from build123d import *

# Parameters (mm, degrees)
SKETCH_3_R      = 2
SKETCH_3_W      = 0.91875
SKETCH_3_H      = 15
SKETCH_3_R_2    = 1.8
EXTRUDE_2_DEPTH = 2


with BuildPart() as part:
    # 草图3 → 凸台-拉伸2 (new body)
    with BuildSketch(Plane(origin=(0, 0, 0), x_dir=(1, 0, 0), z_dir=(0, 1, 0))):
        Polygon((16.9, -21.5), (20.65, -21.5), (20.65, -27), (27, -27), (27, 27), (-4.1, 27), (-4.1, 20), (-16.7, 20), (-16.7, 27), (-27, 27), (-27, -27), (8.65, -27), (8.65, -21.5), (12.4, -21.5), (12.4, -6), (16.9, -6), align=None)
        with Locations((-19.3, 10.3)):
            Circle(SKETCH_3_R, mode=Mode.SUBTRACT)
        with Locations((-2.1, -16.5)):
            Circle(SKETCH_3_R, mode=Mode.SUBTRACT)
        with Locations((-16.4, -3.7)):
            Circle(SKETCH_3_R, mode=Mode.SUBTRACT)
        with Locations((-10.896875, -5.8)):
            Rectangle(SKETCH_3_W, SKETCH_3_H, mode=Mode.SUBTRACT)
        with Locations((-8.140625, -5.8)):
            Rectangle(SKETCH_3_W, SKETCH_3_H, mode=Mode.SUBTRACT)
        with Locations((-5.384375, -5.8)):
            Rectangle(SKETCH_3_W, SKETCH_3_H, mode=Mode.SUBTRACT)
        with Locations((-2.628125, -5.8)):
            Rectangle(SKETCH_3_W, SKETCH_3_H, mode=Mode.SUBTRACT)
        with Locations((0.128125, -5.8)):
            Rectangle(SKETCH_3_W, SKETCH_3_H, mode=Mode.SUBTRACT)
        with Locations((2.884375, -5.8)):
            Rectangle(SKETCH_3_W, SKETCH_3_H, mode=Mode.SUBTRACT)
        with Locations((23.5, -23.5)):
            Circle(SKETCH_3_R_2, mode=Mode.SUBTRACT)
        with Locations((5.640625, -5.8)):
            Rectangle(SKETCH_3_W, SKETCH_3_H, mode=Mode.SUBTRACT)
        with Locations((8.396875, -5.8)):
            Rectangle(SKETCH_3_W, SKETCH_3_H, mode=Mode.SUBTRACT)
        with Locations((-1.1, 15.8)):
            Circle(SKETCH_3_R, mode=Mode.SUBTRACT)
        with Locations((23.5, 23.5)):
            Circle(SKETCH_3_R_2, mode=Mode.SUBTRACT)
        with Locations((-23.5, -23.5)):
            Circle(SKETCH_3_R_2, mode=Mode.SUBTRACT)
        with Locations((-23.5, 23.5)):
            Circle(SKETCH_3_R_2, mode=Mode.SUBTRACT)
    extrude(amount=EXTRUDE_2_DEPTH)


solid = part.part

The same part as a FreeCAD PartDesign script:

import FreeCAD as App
import Part
import Sketcher

V = App.Vector


def add_polygon(sketch, points):
    """Adds a closed chain of lines whose ends are joined by coincident constraints."""
    first, n = sketch.GeometryCount, len(points)
    for a, b in zip(points, points[1:] + points[:1]):
        sketch.addGeometry(Part.LineSegment(App.Vector(*a, 0), App.Vector(*b, 0)), False)
    for i in range(n):
        sketch.addConstraint(Sketcher.Constraint("Coincident", first + i, 2, first + (i + 1) % n, 1))

doc = App.newDocument("Part")
body = doc.addObject("PartDesign::Body", "Body")

sketch1 = doc.addObject("Sketcher::SketchObject", "Sketch")
body.addObject(sketch1)
sketch1.AttachmentSupport = (doc.XZ_Plane, [""])
sketch1.MapMode = "FlatFace"
add_polygon(sketch1, [(16.9, 21.5), (20.6, 21.5), (20.6, 27), (27, 27), (27, -27), (-4.1, -27), (-4.1, -20), (-16.7, -20), (-16.7, -27), (-27, -27), (-27, 27), (8.7, 27), (8.7, 21.5), (12.4, 21.5), (12.4, 6), (16.9, 6)])
sketch1.addGeometry(Part.Circle(V(-23.5, 23.5, 0), V(0, 0, 1), 1.8), False)
sketch1.addGeometry(Part.Circle(V(-2.1, 16.5, 0), V(0, 0, 1), 2), False)
sketch1.addGeometry(Part.Circle(V(-16.4, 3.7, 0), V(0, 0, 1), 2), False)
add_polygon(sketch1, [(-10.4, 13.3), (-11.4, 13.3), (-11.4, -1.7), (-10.4, -1.7)])
add_polygon(sketch1, [(-7.7, 13.3), (-8.6, 13.3), (-8.6, -1.7), (-7.7, -1.7)])
add_polygon(sketch1, [(-4.9, 13.3), (-5.8, 13.3), (-5.8, -1.7), (-4.9, -1.7)])
add_polygon(sketch1, [(-2.2, 13.3), (-3.1, 13.3), (-3.1, -1.7), (-2.2, -1.7)])
sketch1.addGeometry(Part.Circle(V(23.5, 23.5, 0), V(0, 0, 1), 1.8), False)
add_polygon(sketch1, [(0.6, 13.3), (-0.3, 13.3), (-0.3, -1.7), (0.6, -1.7)])
add_polygon(sketch1, [(3.3, 13.3), (2.4, 13.3), (2.4, -1.7), (3.3, -1.7)])
add_polygon(sketch1, [(6.1, 13.3), (5.2, 13.3), (5.2, -1.7), (6.1, -1.7)])
add_polygon(sketch1, [(8.9, 13.3), (7.9, 13.3), (7.9, -1.7), (8.9, -1.7)])
sketch1.addGeometry(Part.Circle(V(-19.3, -10.3, 0), V(0, 0, 1), 2), False)
sketch1.addGeometry(Part.Circle(V(-23.5, -23.5, 0), V(0, 0, 1), 1.8), False)
sketch1.addGeometry(Part.Circle(V(-1.1, -15.8, 0), V(0, 0, 1), 2), False)
sketch1.addGeometry(Part.Circle(V(23.5, -23.5, 0), V(0, 0, 1), 1.8), False)
sketch1.addConstraint([
    Sketcher.Constraint("Horizontal", 0),
    Sketcher.Constraint("Vertical", 1),
    Sketcher.Constraint("Horizontal", 2),
    Sketcher.Constraint("Vertical", 3),
    Sketcher.Constraint("Horizontal", 4),
    Sketcher.Constraint("Vertical", 5),
    Sketcher.Constraint("Horizontal", 6),
    Sketcher.Constraint("Vertical", 7),
    Sketcher.Constraint("Horizontal", 8),
    Sketcher.Constraint("Vertical", 9),
    Sketcher.Constraint("Horizontal", 10),
    Sketcher.Constraint("Vertical", 11),
    Sketcher.Constraint("Horizontal", 12),
    Sketcher.Constraint("Vertical", 13),
    Sketcher.Constraint("Horizontal", 14),
    Sketcher.Constraint("Vertical", 15),
    Sketcher.Constraint("Horizontal", 19),
    Sketcher.Constraint("Vertical", 20),
    Sketcher.Constraint("Horizontal", 21),
    Sketcher.Constraint("Vertical", 22),
    Sketcher.Constraint("Horizontal", 23),
    Sketcher.Constraint("Vertical", 24),
    Sketcher.Constraint("Horizontal", 25),
    Sketcher.Constraint("Vertical", 26),
    Sketcher.Constraint("Horizontal", 27),
    Sketcher.Constraint("Vertical", 28),
    Sketcher.Constraint("Horizontal", 29),
    Sketcher.Constraint("Vertical", 30),
    Sketcher.Constraint("Horizontal", 31),
    Sketcher.Constraint("Vertical", 32),
    Sketcher.Constraint("Horizontal", 33),
    Sketcher.Constraint("Vertical", 34),
    Sketcher.Constraint("Horizontal", 36),
    Sketcher.Constraint("Vertical", 37),
    Sketcher.Constraint("Horizontal", 38),
    Sketcher.Constraint("Vertical", 39),
    Sketcher.Constraint("Horizontal", 40),
    Sketcher.Constraint("Vertical", 41),
    Sketcher.Constraint("Horizontal", 42),
    Sketcher.Constraint("Vertical", 43),
    Sketcher.Constraint("Horizontal", 44),
    Sketcher.Constraint("Vertical", 45),
    Sketcher.Constraint("Horizontal", 46),
    Sketcher.Constraint("Vertical", 47),
    Sketcher.Constraint("Horizontal", 48),
    Sketcher.Constraint("Vertical", 49),
    Sketcher.Constraint("Horizontal", 50),
    Sketcher.Constraint("Vertical", 51),
    Sketcher.Constraint("Equal", 17, 18),
    Sketcher.Constraint("Equal", 16, 35),
    Sketcher.Constraint("Equal", 18, 52),
    Sketcher.Constraint("Equal", 35, 53),
    Sketcher.Constraint("Equal", 52, 54),
    Sketcher.Constraint("Equal", 53, 55),
    Sketcher.Constraint("Symmetric", 35, 3, 53, 3, -1, 1),
    Sketcher.Constraint("Symmetric", 16, 3, 55, 3, -1, 1),
    Sketcher.Constraint("Symmetric", 2, 2, 8, 2, -1, 1),
    Sketcher.Constraint("Symmetric", 16, 3, 35, 3, -2),
    Sketcher.Constraint("Horizontal", 4, 2, 7, 2),
    Sketcher.Constraint("Horizontal", 2, 2, 9, 2),
    Sketcher.Constraint("Horizontal", 0, 2, 11, 2),
    Sketcher.Constraint("Horizontal", 22, 2, 23, 2),
    Sketcher.Constraint("Horizontal", 21, 2, 24, 2),
    Sketcher.Constraint("Horizontal", 26, 2, 27, 2),
    Sketcher.Constraint("Horizontal", 25, 2, 28, 2),
    Sketcher.Constraint("Horizontal", 30, 2, 31, 2),
    Sketcher.Constraint("Horizontal", 29, 2, 32, 2),
    Sketcher.Constraint("Horizontal", 34, 2, 36, 2),
    Sketcher.Constraint("Horizontal", 33, 2, 37, 2),
    Sketcher.Constraint("Horizontal", 39, 2, 40, 2),
    Sketcher.Constraint("Horizontal", 38, 2, 41, 2),
    Sketcher.Constraint("Horizontal", 43, 2, 44, 2),
    Sketcher.Constraint("Horizontal", 42, 2, 45, 2),
    Sketcher.Constraint("Horizontal", 47, 2, 48, 2),
    Sketcher.Constraint("Horizontal", 46, 2, 49, 2),
    Sketcher.Constraint("Equal", 0, 12),
    Sketcher.Constraint("Equal", 21, 23),
    Sketcher.Constraint("Equal", 25, 27),
    Sketcher.Constraint("Equal", 29, 31),
    Sketcher.Constraint("Equal", 33, 36),
    Sketcher.Constraint("Equal", 38, 40),
    Sketcher.Constraint("Equal", 42, 44),
    Sketcher.Constraint("Equal", 46, 48),
    Sketcher.Constraint("Diameter", 17, 4.0),
    Sketcher.Constraint("Diameter", 16, 3.6),
    Sketcher.Constraint("DistanceY", 3, 2, 3, 1, 54.0),
    Sketcher.Constraint("DistanceY", 5, 1, 5, 2, 7.0),
    Sketcher.Constraint("DistanceY", 20, 2, 20, 1, 15.0),
    Sketcher.Constraint("DistanceX", 4, 2, 4, 1, 31.1),
    Sketcher.Constraint("DistanceX", 6, 2, 6, 1, 12.6),
    Sketcher.Constraint("DistanceX", 8, 2, 8, 1, 10.3),
    Sketcher.Constraint("DistanceX", 14, 1, 14, 2, 4.5),
    Sketcher.Constraint("DistanceY", 1, 1, 1, 2, 5.5),
    Sketcher.Constraint("DistanceY", 13, 2, 13, 1, 15.5),
    Sketcher.Constraint("DistanceY", 17, 3, 16, 3, 7.0),
    Sketcher.Constraint("DistanceX", 16, 3, 35, 3, 47.0),
    Sketcher.Constraint("DistanceY", 52, 3, 18, 3, 14.0),
    Sketcher.Constraint("DistanceY", 53, 3, 17, 3, 40.0),
    Sketcher.Constraint("DistanceX", 17, 3, 54, 3, 1.0),
    Sketcher.Constraint("DistanceX", 4, 2, 54, 3, 3.0),
    Sketcher.Constraint("DistanceX", 10, 2, 1, 2, 12.0),
    Sketcher.Constraint("DistanceX", 2, 1, 2, 2, 6.35),
    Sketcher.Constraint("DistanceX", 18, 3, -1, 1, 16.4),
    Sketcher.Constraint("DistanceY", -1, 1, 18, 3, 3.7),
    Sketcher.Constraint("DistanceX", 52, 3, -1, 1, 19.3),
    Sketcher.Constraint("DistanceY", 54, 3, -1, 1, 15.8),
    Sketcher.Constraint("DistanceY", -1, 1, 19, 2, 13.3),
    Sketcher.Constraint("DistanceX", 23, 2, -1, 1, 8.6),
    Sketcher.Constraint("DistanceX", -1, 1, 46, 2, 6.1),
    Sketcher.Constraint("DistanceX", 21, 2, 32, 2, 7.35),
    Sketcher.Constraint("DistanceX", 25, 2, 37, 2, 7.35),
    Sketcher.Constraint("DistanceX", 29, 2, 41, 2, 7.35),
    Sketcher.Constraint("DistanceX", 34, 2, 44, 2, 7.35),
    Sketcher.Constraint("DistanceX", 39, 2, 48, 2, 7.35),
    Sketcher.Constraint("DistanceX", 29, 2, -1, 1, 4.925),
    Sketcher.Constraint("DistanceX", 20, 2, 25, 2, 3.675),
])
pad1 = doc.addObject("PartDesign::Pad", "Pad")
body.addObject(pad1)
pad1.Profile = sketch1
pad1.Length = 2
pad1.Reversed = True

doc.recompute()
